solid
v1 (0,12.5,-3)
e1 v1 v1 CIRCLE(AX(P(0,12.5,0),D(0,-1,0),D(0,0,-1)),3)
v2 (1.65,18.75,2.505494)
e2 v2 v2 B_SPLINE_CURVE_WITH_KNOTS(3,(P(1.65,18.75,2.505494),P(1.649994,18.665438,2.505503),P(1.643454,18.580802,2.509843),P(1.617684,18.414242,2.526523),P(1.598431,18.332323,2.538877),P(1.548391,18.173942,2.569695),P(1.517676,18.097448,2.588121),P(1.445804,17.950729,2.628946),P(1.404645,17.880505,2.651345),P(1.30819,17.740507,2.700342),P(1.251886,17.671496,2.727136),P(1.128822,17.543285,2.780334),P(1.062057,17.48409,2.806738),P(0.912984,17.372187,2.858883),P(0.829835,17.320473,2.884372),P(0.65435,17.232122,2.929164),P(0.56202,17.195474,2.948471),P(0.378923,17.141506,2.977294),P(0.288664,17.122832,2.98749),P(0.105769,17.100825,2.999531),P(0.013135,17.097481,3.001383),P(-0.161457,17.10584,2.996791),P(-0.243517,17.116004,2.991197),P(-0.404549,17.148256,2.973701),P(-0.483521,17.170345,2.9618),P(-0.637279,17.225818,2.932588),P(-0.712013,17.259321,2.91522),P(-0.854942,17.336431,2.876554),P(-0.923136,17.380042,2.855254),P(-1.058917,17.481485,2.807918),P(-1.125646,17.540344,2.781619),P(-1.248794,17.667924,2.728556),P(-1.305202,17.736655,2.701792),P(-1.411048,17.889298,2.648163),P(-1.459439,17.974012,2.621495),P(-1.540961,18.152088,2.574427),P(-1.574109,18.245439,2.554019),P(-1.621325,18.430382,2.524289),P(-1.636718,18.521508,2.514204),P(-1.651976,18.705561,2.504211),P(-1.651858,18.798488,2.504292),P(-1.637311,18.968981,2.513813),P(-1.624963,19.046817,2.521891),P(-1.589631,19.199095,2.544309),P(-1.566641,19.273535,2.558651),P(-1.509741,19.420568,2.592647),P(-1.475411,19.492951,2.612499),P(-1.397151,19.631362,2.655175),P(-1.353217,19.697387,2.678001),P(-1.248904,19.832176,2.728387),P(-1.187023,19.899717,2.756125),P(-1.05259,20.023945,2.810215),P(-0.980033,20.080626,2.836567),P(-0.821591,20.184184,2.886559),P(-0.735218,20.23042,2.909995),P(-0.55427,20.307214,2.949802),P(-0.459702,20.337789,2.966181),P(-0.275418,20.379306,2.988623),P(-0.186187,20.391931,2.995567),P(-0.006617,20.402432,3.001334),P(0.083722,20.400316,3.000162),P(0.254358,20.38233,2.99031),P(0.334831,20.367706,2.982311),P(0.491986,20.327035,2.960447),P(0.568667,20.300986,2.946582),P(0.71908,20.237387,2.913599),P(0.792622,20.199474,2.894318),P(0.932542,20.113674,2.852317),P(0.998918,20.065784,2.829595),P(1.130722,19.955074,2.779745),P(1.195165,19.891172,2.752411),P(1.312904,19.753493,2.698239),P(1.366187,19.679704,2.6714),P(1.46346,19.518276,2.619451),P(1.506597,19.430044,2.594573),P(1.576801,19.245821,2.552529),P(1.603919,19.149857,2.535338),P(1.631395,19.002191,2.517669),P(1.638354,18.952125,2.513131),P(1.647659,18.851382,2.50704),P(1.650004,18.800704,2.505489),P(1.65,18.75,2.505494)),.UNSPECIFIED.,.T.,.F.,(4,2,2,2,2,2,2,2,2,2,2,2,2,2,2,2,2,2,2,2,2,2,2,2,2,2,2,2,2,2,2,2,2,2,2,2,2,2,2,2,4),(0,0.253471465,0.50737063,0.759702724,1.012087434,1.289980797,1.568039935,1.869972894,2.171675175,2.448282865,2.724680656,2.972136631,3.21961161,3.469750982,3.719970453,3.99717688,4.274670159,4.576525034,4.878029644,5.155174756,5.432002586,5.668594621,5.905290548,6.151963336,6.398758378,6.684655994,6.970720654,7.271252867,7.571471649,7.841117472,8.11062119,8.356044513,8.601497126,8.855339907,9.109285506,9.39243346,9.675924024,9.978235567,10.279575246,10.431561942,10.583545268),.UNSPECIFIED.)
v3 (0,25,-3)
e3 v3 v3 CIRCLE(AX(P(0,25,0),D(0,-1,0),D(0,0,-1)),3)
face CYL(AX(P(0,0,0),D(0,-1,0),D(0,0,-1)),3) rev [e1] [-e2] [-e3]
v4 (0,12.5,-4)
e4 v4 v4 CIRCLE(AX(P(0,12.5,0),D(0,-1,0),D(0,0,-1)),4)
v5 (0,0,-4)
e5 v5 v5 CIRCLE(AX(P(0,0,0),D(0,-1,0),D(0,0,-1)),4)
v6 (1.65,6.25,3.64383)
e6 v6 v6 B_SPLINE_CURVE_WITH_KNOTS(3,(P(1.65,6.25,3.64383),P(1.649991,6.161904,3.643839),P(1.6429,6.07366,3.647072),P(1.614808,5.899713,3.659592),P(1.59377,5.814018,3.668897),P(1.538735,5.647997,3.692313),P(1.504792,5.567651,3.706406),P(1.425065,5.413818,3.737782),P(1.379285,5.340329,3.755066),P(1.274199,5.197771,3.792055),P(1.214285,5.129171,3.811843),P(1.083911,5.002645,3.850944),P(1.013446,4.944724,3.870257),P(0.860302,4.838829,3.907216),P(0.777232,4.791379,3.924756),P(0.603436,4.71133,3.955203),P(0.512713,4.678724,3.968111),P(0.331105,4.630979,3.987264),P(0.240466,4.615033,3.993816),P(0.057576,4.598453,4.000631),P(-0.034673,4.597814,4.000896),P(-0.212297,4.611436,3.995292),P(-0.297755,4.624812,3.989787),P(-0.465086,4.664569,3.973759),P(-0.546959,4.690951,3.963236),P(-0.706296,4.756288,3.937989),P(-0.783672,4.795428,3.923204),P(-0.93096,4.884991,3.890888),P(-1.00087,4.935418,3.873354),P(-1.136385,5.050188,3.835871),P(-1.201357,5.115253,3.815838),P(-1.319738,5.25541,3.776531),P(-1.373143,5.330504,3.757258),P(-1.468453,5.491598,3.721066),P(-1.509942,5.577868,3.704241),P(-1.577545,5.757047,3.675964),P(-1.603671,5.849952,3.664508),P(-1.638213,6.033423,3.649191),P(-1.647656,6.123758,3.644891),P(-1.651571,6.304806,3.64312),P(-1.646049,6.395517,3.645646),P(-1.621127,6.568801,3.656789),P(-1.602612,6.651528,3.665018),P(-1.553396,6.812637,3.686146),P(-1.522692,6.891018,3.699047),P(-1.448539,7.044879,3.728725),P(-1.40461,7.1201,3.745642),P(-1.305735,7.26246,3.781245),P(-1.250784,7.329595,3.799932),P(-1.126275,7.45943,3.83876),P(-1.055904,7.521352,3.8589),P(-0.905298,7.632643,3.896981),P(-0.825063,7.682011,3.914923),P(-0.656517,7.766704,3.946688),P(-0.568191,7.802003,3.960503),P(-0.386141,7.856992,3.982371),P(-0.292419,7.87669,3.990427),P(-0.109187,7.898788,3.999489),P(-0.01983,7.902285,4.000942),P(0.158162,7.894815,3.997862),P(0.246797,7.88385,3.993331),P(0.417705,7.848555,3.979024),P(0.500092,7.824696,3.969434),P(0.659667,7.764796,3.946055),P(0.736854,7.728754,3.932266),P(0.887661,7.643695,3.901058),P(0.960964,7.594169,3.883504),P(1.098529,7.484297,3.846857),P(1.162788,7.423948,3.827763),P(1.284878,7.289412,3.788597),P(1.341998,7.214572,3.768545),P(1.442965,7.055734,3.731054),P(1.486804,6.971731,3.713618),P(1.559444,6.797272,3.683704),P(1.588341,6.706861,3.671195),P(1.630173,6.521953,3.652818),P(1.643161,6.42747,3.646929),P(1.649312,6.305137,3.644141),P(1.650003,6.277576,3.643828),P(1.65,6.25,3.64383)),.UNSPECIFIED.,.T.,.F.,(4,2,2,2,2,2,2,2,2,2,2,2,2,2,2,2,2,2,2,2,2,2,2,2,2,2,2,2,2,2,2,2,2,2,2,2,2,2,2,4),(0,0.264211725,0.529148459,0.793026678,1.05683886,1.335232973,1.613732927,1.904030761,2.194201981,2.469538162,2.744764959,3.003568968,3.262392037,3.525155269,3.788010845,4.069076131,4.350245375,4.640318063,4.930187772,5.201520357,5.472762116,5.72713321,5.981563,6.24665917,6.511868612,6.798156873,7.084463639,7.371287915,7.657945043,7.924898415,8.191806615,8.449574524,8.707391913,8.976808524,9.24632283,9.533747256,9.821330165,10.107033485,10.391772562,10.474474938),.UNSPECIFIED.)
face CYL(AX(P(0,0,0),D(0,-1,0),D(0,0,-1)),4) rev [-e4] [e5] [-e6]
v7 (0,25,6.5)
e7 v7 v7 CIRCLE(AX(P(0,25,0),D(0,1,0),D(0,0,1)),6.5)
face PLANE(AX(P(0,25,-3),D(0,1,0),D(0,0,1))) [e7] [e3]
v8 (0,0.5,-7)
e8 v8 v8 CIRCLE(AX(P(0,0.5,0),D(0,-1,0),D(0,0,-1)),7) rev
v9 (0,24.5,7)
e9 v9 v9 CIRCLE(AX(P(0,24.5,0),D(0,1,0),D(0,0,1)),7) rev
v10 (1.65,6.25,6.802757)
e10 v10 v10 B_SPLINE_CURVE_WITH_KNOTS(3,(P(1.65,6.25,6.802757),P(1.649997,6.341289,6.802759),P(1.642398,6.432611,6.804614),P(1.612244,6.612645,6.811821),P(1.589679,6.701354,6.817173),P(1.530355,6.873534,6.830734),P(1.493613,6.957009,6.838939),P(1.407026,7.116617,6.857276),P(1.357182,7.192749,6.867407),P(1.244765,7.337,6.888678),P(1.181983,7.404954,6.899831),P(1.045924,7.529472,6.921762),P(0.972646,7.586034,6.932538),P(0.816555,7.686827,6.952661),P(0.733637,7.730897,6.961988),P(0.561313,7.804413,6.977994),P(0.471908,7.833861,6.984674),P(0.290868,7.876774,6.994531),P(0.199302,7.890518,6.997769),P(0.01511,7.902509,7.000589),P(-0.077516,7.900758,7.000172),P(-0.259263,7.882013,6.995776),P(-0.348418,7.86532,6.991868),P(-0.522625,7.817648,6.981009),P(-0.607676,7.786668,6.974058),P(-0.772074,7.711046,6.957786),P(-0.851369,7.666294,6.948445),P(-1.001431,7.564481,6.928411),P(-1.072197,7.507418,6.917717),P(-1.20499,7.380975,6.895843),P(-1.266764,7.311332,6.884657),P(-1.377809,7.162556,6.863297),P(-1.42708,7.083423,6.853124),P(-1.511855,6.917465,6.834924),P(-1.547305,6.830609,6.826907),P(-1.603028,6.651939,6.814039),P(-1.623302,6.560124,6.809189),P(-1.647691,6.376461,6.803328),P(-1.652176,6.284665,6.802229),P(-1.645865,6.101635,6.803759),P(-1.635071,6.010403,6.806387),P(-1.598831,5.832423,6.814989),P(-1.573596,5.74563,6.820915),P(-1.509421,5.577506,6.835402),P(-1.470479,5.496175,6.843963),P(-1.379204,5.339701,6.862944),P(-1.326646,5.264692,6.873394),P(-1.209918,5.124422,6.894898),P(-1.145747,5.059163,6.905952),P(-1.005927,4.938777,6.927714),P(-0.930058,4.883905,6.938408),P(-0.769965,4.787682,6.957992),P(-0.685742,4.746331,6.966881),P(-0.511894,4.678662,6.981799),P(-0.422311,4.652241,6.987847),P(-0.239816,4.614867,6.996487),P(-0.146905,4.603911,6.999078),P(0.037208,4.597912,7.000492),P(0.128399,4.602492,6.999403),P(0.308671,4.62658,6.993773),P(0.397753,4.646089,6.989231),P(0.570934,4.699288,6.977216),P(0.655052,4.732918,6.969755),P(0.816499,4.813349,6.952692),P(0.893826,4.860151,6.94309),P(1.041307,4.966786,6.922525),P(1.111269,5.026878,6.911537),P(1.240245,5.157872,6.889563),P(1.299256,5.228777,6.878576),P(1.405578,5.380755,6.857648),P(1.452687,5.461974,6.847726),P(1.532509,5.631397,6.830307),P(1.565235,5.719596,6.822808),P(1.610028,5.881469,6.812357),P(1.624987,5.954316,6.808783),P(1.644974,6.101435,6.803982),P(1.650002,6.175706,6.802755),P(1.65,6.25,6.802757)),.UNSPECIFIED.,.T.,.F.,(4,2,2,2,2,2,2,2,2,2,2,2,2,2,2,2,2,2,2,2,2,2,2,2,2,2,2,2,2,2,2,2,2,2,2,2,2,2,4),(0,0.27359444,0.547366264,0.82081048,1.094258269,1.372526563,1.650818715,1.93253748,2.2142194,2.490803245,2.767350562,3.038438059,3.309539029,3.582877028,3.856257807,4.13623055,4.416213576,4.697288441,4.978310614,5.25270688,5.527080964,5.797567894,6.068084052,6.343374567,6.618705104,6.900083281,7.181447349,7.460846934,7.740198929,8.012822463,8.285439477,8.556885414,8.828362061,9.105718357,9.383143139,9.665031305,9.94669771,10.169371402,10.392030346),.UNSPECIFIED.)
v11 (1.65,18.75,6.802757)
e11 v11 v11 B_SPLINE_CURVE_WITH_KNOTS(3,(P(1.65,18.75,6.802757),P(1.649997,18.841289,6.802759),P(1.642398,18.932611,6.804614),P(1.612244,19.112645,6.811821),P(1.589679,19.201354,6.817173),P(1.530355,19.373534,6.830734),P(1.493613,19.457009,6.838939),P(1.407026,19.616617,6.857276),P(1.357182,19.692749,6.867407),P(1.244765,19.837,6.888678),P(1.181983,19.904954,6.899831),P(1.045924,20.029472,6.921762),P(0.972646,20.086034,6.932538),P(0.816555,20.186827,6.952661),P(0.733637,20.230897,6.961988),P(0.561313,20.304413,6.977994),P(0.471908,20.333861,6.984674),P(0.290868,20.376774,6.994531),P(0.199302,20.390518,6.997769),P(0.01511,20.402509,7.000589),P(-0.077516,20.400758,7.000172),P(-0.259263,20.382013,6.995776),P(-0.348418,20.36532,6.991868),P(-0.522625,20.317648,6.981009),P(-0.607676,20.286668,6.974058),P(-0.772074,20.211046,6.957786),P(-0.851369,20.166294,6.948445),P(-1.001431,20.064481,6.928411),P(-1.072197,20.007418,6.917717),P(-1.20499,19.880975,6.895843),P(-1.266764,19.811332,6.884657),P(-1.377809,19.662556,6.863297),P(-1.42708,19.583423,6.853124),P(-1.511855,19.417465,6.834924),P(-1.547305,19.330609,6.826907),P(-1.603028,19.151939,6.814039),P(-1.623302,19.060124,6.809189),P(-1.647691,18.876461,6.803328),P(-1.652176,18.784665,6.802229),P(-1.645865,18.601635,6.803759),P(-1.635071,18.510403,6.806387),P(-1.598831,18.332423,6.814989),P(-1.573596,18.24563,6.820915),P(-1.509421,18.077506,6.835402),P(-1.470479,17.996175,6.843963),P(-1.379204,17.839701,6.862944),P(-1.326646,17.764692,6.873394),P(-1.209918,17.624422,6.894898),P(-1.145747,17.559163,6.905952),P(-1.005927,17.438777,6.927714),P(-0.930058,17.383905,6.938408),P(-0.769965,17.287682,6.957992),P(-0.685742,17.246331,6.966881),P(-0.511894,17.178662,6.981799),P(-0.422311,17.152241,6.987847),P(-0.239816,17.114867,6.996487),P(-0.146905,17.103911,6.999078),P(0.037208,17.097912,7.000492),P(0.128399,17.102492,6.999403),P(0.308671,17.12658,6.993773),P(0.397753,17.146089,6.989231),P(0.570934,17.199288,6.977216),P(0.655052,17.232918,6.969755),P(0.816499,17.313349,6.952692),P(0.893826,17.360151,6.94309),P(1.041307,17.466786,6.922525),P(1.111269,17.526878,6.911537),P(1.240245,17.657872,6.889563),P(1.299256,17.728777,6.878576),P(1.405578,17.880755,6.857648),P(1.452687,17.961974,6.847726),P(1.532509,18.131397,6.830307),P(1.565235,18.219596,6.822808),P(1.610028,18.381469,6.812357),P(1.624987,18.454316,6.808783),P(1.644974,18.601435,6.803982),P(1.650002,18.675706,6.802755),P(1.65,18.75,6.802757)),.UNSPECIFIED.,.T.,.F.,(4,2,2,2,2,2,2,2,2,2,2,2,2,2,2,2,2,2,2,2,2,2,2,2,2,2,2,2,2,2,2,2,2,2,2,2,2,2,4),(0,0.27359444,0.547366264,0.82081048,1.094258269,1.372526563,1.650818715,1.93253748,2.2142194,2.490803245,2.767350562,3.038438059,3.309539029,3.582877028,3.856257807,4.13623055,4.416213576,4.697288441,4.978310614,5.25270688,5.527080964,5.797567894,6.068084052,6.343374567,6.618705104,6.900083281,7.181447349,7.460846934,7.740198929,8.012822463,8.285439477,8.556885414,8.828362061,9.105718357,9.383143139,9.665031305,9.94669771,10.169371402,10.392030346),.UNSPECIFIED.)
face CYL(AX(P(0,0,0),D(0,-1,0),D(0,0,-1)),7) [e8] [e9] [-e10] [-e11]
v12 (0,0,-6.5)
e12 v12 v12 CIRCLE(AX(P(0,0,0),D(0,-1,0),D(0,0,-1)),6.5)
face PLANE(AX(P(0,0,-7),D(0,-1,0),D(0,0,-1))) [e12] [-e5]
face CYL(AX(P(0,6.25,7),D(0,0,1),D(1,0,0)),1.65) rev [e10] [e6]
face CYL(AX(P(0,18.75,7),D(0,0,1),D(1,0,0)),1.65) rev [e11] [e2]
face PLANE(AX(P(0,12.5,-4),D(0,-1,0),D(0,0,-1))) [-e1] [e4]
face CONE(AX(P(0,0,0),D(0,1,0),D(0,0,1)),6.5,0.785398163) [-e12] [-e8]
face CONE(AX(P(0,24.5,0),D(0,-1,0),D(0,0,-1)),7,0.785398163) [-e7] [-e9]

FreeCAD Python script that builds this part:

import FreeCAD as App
import Part
import Sketcher
from FreeCAD import Vector
Q = App.Units.Quantity


def edges_at(feature, points):
    """Names of the edges that pass closest to the given points."""
    edges = feature.Shape.Edges
    near = lambda p: min(range(len(edges)), key=lambda i: edges[i].distToShape(Part.Vertex(*p))[0])
    return sorted({f"Edge{near(p) + 1}" for p in points})


def add_polygon(sketch, points):
    """Adds a closed chain of lines whose ends are joined by coincident constraints."""
    first, n = sketch.GeometryCount, len(points)
    for a, b in zip(points, points[1:] + points[:1]):
        sketch.addGeometry(Part.LineSegment(App.Vector(*a, 0), App.Vector(*b, 0)), False)
    for i in range(n):
        sketch.addConstraint(Sketcher.Constraint("Coincident", first + i, 2, first + (i + 1) % n, 1))

doc = App.newDocument("Part")
body = doc.addObject("PartDesign::Body", "Body")

sketch1 = body.newObject("Sketcher::SketchObject", "Sketch")
sketch1.AttachmentSupport = (doc.getObject("YZ_Plane"), [""])
sketch1.MapMode = "FlatFace"
add_polygon(sketch1, [(12.5, -4), (0, -4), (0, -7), (25, -7), (25, -3), (12.5, -3)])
sketch1.addConstraint([
    Sketcher.Constraint("Horizontal", 0),
    Sketcher.Constraint("Vertical", 1),
    Sketcher.Constraint("Horizontal", 2),
    Sketcher.Constraint("Vertical", 3),
    Sketcher.Constraint("Horizontal", 4),
    Sketcher.Constraint("Vertical", 5),
    Sketcher.Constraint("PointOnObject", 0, 2, -2),
    Sketcher.Constraint("Equal", 0, 4),
    Sketcher.Constraint("DistanceX", 2, 1, 2, 2, Q("25 mm")),
    Sketcher.Constraint("DistanceY", 1, 2, 1, 1, Q("3 mm")),
    Sketcher.Constraint("DistanceY", 3, 1, 3, 2, Q("4 mm")),
    Sketcher.Constraint("DistanceY", 0, 2, -1, 1, Q("4 mm")),
])
revolution = body.newObject("PartDesign::Revolution", "Revolution")
revolution.Profile = sketch1
revolution.ReferenceAxis = (sketch1, ["H_Axis"])
revolution.Angle = 360
doc.recompute()

chamfer = body.newObject("PartDesign::Chamfer", "Chamfer")
chamfer.Base = (revolution, edges_at(revolution, [(0, 0, 7), (0, 25, 7)]))
chamfer.Size = 0.5

sketch2 = body.newObject("Sketcher::SketchObject", "Sketch001")
sketch2.AttachmentSupport = (doc.getObject("XY_Plane"), [""])
sketch2.MapMode = "FlatFace"
sketch2.AttachmentOffset = App.Placement(Vector(0, 0, 7), App.Rotation())
sketch2.addGeometry(Part.Circle(Vector(0, 18.8, 0), Vector(0, 0, 1), 1.6), False)
sketch2.addConstraint([
    Sketcher.Constraint("PointOnObject", 0, 3, -2),
    Sketcher.Constraint("Diameter", 0, Q("3.3 mm")),
    Sketcher.Constraint("DistanceY", -1, 1, 0, 3, Q("18.75 mm")),
])
pocket1 = body.newObject("PartDesign::Pocket", "Pocket")
pocket1.Profile = sketch2
pocket1.Type = "UpToFirst"

sketch3 = body.newObject("Sketcher::SketchObject", "Sketch002")
sketch3.AttachmentSupport = (doc.getObject("XY_Plane"), [""])
sketch3.MapMode = "FlatFace"
sketch3.AttachmentOffset = App.Placement(Vector(0, 0, 7), App.Rotation())
sketch3.addGeometry(Part.Circle(Vector(0, 6.2, 0), Vector(0, 0, 1), 1.6), False)
sketch3.addConstraint([
    Sketcher.Constraint("PointOnObject", 0, 3, -2),
    Sketcher.Constraint("Diameter", 0, Q("3.3 mm")),
    Sketcher.Constraint("DistanceY", -1, 1, 0, 3, Q("6.25 mm")),
])
pocket2 = body.newObject("PartDesign::Pocket", "Pocket001")
pocket2.Profile = sketch3
pocket2.Type = "UpToFirst"

doc.recompute()
